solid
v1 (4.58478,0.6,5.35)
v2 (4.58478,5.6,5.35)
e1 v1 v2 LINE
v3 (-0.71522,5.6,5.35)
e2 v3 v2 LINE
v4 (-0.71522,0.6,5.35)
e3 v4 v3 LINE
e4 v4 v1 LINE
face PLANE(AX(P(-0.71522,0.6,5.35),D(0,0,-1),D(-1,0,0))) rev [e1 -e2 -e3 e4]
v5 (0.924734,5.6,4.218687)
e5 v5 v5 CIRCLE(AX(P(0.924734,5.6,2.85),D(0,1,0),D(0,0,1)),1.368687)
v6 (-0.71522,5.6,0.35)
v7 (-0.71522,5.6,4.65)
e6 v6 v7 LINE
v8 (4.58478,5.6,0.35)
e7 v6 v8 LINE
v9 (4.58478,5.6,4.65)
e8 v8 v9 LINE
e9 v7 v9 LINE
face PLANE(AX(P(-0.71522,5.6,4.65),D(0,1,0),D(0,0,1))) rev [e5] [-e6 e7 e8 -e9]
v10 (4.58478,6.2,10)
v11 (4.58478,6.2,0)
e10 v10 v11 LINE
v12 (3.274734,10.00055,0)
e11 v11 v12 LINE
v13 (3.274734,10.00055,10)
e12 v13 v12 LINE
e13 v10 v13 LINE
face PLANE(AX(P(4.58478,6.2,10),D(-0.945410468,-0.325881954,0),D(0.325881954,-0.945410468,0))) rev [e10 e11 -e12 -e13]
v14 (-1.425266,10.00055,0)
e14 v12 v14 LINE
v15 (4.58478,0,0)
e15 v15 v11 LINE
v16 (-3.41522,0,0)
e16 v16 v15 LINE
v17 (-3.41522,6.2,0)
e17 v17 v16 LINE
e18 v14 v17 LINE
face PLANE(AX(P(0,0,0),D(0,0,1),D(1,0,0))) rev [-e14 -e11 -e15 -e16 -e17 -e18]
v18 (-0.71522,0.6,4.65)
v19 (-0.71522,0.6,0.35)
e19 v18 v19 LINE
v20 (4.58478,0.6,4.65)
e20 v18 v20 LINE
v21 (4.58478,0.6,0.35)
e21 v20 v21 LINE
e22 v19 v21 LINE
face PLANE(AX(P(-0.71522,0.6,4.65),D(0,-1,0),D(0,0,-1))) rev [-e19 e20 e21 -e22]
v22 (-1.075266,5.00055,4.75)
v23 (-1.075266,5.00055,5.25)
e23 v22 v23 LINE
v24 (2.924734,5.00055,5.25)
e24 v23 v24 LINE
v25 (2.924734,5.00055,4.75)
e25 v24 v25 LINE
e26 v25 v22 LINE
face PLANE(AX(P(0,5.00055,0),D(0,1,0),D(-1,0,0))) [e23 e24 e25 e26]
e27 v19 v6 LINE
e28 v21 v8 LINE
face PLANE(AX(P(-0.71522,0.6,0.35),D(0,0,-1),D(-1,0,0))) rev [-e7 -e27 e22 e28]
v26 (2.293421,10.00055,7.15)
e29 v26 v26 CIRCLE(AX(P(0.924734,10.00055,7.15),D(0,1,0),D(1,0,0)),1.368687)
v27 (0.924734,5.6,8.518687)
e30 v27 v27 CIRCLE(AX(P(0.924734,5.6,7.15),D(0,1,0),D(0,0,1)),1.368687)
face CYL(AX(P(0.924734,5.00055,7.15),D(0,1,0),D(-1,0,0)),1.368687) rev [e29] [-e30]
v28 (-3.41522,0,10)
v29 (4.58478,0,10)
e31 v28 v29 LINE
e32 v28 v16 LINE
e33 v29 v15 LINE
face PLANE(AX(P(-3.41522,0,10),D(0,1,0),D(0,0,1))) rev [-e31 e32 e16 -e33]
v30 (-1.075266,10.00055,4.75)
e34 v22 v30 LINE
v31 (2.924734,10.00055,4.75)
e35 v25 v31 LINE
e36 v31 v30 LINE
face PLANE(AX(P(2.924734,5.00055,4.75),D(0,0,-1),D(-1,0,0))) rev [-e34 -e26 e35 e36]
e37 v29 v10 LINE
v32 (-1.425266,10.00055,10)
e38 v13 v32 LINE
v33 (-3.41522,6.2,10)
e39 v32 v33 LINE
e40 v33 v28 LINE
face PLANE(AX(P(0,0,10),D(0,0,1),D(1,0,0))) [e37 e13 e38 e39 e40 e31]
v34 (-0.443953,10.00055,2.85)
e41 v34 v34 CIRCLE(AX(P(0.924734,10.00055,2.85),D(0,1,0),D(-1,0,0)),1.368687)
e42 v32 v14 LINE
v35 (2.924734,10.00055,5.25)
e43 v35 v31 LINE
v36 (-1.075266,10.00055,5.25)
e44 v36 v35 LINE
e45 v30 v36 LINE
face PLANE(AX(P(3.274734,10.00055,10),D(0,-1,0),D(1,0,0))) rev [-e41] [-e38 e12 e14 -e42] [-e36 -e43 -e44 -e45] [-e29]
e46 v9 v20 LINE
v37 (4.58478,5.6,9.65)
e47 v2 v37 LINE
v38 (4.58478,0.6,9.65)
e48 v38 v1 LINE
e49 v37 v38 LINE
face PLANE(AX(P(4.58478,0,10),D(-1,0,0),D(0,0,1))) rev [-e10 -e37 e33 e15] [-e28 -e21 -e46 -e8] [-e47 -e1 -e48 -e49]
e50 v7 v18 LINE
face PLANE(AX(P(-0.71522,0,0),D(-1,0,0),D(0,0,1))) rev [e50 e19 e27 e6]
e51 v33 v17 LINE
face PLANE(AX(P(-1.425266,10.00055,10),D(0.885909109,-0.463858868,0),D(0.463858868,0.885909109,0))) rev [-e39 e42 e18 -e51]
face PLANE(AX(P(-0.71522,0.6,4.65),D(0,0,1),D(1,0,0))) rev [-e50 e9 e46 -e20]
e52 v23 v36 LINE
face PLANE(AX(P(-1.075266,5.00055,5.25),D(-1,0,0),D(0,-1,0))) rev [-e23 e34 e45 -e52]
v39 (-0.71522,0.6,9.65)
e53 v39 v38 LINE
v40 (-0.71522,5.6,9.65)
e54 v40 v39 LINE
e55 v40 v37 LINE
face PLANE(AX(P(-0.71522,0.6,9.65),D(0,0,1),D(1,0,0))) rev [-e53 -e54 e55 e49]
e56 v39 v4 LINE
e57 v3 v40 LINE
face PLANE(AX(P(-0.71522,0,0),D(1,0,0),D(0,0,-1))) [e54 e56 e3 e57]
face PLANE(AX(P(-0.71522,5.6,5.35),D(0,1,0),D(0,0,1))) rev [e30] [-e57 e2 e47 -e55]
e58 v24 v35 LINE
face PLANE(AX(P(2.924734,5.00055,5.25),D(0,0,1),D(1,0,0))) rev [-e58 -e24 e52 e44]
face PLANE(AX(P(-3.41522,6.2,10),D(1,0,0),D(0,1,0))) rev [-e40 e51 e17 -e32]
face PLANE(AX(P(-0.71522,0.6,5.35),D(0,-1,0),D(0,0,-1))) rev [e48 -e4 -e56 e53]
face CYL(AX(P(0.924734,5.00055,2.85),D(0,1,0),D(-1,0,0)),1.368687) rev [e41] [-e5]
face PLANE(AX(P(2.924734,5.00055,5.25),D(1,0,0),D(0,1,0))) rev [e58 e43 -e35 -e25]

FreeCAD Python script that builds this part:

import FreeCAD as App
import Part
import Sketcher
from FreeCAD import Vector
Q = App.Units.Quantity

doc = App.newDocument("Part")
body = doc.addObject("PartDesign::Body", "Body")

# Sketch on XY plane
sketch1 = body.newObject("Sketcher::SketchObject", "Sketch")
sketch1.AttachmentSupport = (doc.getObject("XY_Plane"), [""])
sketch1.MapMode = "FlatFace"
sketch1.addGeometry(Part.LineSegment(Vector(-3.4, 0, 0), Vector(4.6, 0, 0)), False)
sketch1.addGeometry(Part.LineSegment(Vector(4.6, 0, 0), Vector(4.6, 6.2, 0)), False)
sketch1.addGeometry(Part.LineSegment(Vector(4.6, 6.2, 0), Vector(3.3, 10, 0)), False)
sketch1.addGeometry(Part.LineSegment(Vector(3.3, 10, 0), Vector(-1.4, 10, 0)), False)
sketch1.addGeometry(Part.LineSegment(Vector(-1.4, 10, 0), Vector(-3.4, 6.2, 0)), False)
sketch1.addGeometry(Part.LineSegment(Vector(-3.4, 6.2, 0), Vector(-3.4, 0, 0)), False)
sketch1.addConstraint(Sketcher.Constraint("Coincident", 0, 2, 1, 1))
sketch1.addConstraint(Sketcher.Constraint("Coincident", 1, 2, 2, 1))
sketch1.addConstraint(Sketcher.Constraint("Coincident", 2, 2, 3, 1))
sketch1.addConstraint(Sketcher.Constraint("Coincident", 3, 2, 4, 1))
sketch1.addConstraint(Sketcher.Constraint("Coincident", 4, 2, 5, 1))
sketch1.addConstraint(Sketcher.Constraint("Coincident", 5, 2, 0, 1))
sketch1.addConstraint(Sketcher.Constraint("Horizontal", 0))
sketch1.addConstraint(Sketcher.Constraint("Vertical", 1))
sketch1.addConstraint(Sketcher.Constraint("Horizontal", 3))
sketch1.addConstraint(Sketcher.Constraint("Vertical", 5))
sketch1.addConstraint(Sketcher.Constraint("PointOnObject", 0, 2, -1))
sketch1.addConstraint(Sketcher.Constraint("Horizontal", 1, 2, 4, 2))
sketch1.addConstraint(Sketcher.Constraint("DistanceX", 0, 1, 0, 2, Q("8 mm")))
sketch1.addConstraint(Sketcher.Constraint("DistanceX", 3, 2, 3, 1, Q("4.7 mm")))
sketch1.addConstraint(Sketcher.Constraint("DistanceY", 1, 1, 1, 2, Q("6.2 mm")))
sketch1.addConstraint(Sketcher.Constraint("Distance", 2, Q("4.02 mm")))
sketch1.addConstraint(Sketcher.Constraint("Distance", 4, Q("4.29 mm")))
sketch1.addConstraint(Sketcher.Constraint("DistanceX", -1, 1, 0, 2, Q("4.58478 mm")))
pad1 = body.newObject("PartDesign::Pad", "Pad")
pad1.Profile = sketch1
pad1.Length = 10

# Sketch on YZ plane
sketch2 = body.newObject("Sketcher::SketchObject", "Sketch001")
sketch2.AttachmentSupport = (doc.getObject("YZ_Plane"), [""])
sketch2.MapMode = "FlatFace"
sketch2.AttachmentOffset = App.Placement(Vector(0, 0, 4.58478), App.Rotation())
sketch2.addGeometry(Part.LineSegment(Vector(5.6, 9.7, 0), Vector(0.6, 9.7, 0)), False)
sketch2.addGeometry(Part.LineSegment(Vector(0.6, 9.7, 0), Vector(0.6, 5.3, 0)), False)
sketch2.addGeometry(Part.LineSegment(Vector(0.6, 5.3, 0), Vector(5.6, 5.3, 0)), False)
sketch2.addGeometry(Part.LineSegment(Vector(5.6, 5.3, 0), Vector(5.6, 9.7, 0)), False)
sketch2.addGeometry(Part.LineSegment(Vector(5.6, 4.7, 0), Vector(0.6, 4.7, 0)), False)
sketch2.addGeometry(Part.LineSegment(Vector(0.6, 4.7, 0), Vector(0.6, 0.3, 0)), False)
sketch2.addGeometry(Part.LineSegment(Vector(0.6, 0.3, 0), Vector(5.6, 0.3, 0)), False)
sketch2.addGeometry(Part.LineSegment(Vector(5.6, 0.3, 0), Vector(5.6, 4.7, 0)), False)
sketch2.addConstraint(Sketcher.Constraint("Coincident", 0, 2, 1, 1))
sketch2.addConstraint(Sketcher.Constraint("Coincident", 1, 2, 2, 1))
sketch2.addConstraint(Sketcher.Constraint("Coincident", 2, 2, 3, 1))
sketch2.addConstraint(Sketcher.Constraint("Coincident", 3, 2, 0, 1))
sketch2.addConstraint(Sketcher.Constraint("Coincident", 4, 2, 5, 1))
sketch2.addConstraint(Sketcher.Constraint("Coincident", 5, 2, 6, 1))
sketch2.addConstraint(Sketcher.Constraint("Coincident", 6, 2, 7, 1))
sketch2.addConstraint(Sketcher.Constraint("Coincident", 7, 2, 4, 1))
sketch2.addConstraint(Sketcher.Constraint("Horizontal", 0))
sketch2.addConstraint(Sketcher.Constraint("Vertical", 1))
sketch2.addConstraint(Sketcher.Constraint("Horizontal", 2))
sketch2.addConstraint(Sketcher.Constraint("Vertical", 3))
sketch2.addConstraint(Sketcher.Constraint("Horizontal", 4))
sketch2.addConstraint(Sketcher.Constraint("Vertical", 5))
sketch2.addConstraint(Sketcher.Constraint("Horizontal", 6))
sketch2.addConstraint(Sketcher.Constraint("Vertical", 7))
sketch2.addConstraint(Sketcher.Constraint("Vertical", 1, 2, 4, 2))
sketch2.addConstraint(Sketcher.Constraint("Vertical", 3, 2, 6, 2))
sketch2.addConstraint(Sketcher.Constraint("Equal", 3, 5))
sketch2.addConstraint(Sketcher.Constraint("DistanceX", 0, 2, 0, 1, Q("5 mm")))
sketch2.addConstraint(Sketcher.Constraint("DistanceY", 1, 2, 1, 1, Q("4.3 mm")))
sketch2.addConstraint(Sketcher.Constraint("DistanceY", 4, 2, 0, 2, Q("5 mm")))
sketch2.addConstraint(Sketcher.Constraint("DistanceX", -1, 1, 0, 2, Q("0.6 mm")))
sketch2.addConstraint(Sketcher.Constraint("DistanceY", -1, 1, 0, 2, Q("9.65 mm")))
pocket1 = body.newObject("PartDesign::Pocket", "Pocket")
pocket1.Profile = sketch2
pocket1.Length = 5.3

# Sketch on XZ plane
sketch3 = body.newObject("Sketcher::SketchObject", "Sketch002")
sketch3.AttachmentSupport = (doc.getObject("XZ_Plane"), [""])
sketch3.MapMode = "FlatFace"
sketch3.AttachmentOffset = App.Placement(Vector(0, 0, -10.00055), App.Rotation())
sketch3.addGeometry(Part.Circle(Vector(0.9, 2.9, 0), Vector(0, 0, 1), 1.4), False)
sketch3.addGeometry(Part.Circle(Vector(0.9, 7.2, 0), Vector(0, 0, 1), 1.4), False)
sketch3.addGeometry(Part.LineSegment(Vector(-1.1, 4.8, 0), Vector(-1.1, 5.2, 0)), False)
sketch3.addGeometry(Part.LineSegment(Vector(-1.1, 5.2, 0), Vector(2.9, 5.2, 0)), False)
sketch3.addGeometry(Part.LineSegment(Vector(2.9, 5.2, 0), Vector(2.9, 4.8, 0)), False)
sketch3.addGeometry(Part.LineSegment(Vector(2.9, 4.8, 0), Vector(-1.1, 4.8, 0)), False)
sketch3.addConstraint(Sketcher.Constraint("Coincident", 2, 2, 3, 1))
sketch3.addConstraint(Sketcher.Constraint("Coincident", 3, 2, 4, 1))
sketch3.addConstraint(Sketcher.Constraint("Coincident", 4, 2, 5, 1))
sketch3.addConstraint(Sketcher.Constraint("Coincident", 5, 2, 2, 1))
sketch3.addConstraint(Sketcher.Constraint("Vertical", 2))
sketch3.addConstraint(Sketcher.Constraint("Horizontal", 3))
sketch3.addConstraint(Sketcher.Constraint("Vertical", 4))
sketch3.addConstraint(Sketcher.Constraint("Horizontal", 5))
sketch3.addConstraint(Sketcher.Constraint("Equal", 0, 1))
sketch3.addConstraint(Sketcher.Constraint("Vertical", 0, 3, 1, 3))
sketch3.addConstraint(Sketcher.Constraint("DistanceX", 3, 1, 3, 2, Q("4 mm")))
sketch3.addConstraint(Sketcher.Constraint("DistanceY", 2, 1, 2, 2, Q("0.5 mm")))
sketch3.addConstraint(Sketcher.Constraint("DistanceX", 2, 2, 1, 3, Q("2 mm")))
sketch3.addConstraint(Sketcher.Constraint("DistanceY", 0, 3, 1, 3, Q("4.3 mm")))
sketch3.addConstraint(Sketcher.Constraint("DistanceY", 2, 2, 1, 3, Q("1.9 mm")))
sketch3.addConstraint(Sketcher.Constraint("DistanceY", -1, 1, 0, 3, Q("2.85 mm")))
sketch3.addConstraint(Sketcher.Constraint("Diameter", 0, Q("2.737373 mm")))
sketch3.addConstraint(Sketcher.Constraint("DistanceX", -1, 1, 0, 3, Q("0.924734 mm")))
pocket2 = body.newObject("PartDesign::Pocket", "Pocket001")
pocket2.Profile = sketch3
pocket2.Length = 5
pocket2.Reversed = True

doc.recompute()
